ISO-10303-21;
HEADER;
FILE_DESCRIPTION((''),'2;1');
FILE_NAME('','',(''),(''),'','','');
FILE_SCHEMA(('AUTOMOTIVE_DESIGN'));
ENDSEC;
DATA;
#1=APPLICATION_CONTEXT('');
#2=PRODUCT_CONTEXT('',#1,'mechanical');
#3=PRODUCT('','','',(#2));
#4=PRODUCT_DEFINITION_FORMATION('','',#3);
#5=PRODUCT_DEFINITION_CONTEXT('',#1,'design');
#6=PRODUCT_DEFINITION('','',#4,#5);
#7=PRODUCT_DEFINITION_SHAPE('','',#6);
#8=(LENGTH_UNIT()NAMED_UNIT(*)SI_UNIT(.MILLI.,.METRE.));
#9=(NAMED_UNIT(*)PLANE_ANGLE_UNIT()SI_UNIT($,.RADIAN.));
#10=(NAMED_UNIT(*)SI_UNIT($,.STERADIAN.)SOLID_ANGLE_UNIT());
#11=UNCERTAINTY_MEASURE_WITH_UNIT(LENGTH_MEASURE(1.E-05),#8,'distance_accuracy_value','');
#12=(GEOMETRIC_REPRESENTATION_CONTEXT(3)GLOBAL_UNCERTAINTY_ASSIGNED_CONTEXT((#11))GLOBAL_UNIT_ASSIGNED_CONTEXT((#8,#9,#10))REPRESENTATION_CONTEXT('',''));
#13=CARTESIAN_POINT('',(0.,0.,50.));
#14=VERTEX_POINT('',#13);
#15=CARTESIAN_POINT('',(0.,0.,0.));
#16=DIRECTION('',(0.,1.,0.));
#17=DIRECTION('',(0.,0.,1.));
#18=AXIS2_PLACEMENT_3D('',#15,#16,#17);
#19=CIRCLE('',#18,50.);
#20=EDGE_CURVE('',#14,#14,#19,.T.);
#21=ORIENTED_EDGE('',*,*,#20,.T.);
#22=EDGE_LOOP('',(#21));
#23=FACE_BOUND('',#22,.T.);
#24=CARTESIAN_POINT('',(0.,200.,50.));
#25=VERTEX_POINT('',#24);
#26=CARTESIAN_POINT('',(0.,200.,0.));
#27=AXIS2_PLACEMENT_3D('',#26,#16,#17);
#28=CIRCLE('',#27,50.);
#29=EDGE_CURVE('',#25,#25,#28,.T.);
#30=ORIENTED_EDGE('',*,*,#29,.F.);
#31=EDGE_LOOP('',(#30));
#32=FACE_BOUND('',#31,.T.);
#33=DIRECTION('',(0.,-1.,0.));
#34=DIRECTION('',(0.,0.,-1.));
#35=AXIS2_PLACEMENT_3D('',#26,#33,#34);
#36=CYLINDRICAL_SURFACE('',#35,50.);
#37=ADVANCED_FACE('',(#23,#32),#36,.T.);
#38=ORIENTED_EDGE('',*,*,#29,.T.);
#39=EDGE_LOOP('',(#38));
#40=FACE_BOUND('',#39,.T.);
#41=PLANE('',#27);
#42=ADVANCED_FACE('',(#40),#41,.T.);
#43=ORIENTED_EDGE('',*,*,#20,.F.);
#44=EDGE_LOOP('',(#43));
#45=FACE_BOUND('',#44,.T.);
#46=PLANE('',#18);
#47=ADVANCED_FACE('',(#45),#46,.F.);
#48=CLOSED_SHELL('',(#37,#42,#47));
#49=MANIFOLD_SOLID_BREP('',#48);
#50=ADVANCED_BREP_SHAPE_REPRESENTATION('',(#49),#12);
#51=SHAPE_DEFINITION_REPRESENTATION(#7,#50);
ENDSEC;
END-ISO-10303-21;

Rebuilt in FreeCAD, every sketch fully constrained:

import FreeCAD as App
import Part
import Sketcher
from FreeCAD import Vector

doc = App.newDocument("Part")
body = doc.addObject("PartDesign::Body", "Body")

# Sketch on XZ plane
sketch1 = body.newObject("Sketcher::SketchObject", "Sketch")
sketch1.AttachmentSupport = (doc.getObject("XZ_Plane"), [""])
sketch1.MapMode = "FlatFace"
sketch1.addGeometry(Part.Circle(Vector(0, 0, 0), Vector(0, 0, 1), 50), False)
sketch1.addConstraint([
    Sketcher.Constraint("Coincident", 0, 3, -1, 1),
    Sketcher.Constraint("Diameter", 0, 100.0),
])
pad1 = body.newObject("PartDesign::Pad", "Pad")
pad1.Profile = sketch1
pad1.Length = 200
pad1.Reversed = True

doc.recompute()
